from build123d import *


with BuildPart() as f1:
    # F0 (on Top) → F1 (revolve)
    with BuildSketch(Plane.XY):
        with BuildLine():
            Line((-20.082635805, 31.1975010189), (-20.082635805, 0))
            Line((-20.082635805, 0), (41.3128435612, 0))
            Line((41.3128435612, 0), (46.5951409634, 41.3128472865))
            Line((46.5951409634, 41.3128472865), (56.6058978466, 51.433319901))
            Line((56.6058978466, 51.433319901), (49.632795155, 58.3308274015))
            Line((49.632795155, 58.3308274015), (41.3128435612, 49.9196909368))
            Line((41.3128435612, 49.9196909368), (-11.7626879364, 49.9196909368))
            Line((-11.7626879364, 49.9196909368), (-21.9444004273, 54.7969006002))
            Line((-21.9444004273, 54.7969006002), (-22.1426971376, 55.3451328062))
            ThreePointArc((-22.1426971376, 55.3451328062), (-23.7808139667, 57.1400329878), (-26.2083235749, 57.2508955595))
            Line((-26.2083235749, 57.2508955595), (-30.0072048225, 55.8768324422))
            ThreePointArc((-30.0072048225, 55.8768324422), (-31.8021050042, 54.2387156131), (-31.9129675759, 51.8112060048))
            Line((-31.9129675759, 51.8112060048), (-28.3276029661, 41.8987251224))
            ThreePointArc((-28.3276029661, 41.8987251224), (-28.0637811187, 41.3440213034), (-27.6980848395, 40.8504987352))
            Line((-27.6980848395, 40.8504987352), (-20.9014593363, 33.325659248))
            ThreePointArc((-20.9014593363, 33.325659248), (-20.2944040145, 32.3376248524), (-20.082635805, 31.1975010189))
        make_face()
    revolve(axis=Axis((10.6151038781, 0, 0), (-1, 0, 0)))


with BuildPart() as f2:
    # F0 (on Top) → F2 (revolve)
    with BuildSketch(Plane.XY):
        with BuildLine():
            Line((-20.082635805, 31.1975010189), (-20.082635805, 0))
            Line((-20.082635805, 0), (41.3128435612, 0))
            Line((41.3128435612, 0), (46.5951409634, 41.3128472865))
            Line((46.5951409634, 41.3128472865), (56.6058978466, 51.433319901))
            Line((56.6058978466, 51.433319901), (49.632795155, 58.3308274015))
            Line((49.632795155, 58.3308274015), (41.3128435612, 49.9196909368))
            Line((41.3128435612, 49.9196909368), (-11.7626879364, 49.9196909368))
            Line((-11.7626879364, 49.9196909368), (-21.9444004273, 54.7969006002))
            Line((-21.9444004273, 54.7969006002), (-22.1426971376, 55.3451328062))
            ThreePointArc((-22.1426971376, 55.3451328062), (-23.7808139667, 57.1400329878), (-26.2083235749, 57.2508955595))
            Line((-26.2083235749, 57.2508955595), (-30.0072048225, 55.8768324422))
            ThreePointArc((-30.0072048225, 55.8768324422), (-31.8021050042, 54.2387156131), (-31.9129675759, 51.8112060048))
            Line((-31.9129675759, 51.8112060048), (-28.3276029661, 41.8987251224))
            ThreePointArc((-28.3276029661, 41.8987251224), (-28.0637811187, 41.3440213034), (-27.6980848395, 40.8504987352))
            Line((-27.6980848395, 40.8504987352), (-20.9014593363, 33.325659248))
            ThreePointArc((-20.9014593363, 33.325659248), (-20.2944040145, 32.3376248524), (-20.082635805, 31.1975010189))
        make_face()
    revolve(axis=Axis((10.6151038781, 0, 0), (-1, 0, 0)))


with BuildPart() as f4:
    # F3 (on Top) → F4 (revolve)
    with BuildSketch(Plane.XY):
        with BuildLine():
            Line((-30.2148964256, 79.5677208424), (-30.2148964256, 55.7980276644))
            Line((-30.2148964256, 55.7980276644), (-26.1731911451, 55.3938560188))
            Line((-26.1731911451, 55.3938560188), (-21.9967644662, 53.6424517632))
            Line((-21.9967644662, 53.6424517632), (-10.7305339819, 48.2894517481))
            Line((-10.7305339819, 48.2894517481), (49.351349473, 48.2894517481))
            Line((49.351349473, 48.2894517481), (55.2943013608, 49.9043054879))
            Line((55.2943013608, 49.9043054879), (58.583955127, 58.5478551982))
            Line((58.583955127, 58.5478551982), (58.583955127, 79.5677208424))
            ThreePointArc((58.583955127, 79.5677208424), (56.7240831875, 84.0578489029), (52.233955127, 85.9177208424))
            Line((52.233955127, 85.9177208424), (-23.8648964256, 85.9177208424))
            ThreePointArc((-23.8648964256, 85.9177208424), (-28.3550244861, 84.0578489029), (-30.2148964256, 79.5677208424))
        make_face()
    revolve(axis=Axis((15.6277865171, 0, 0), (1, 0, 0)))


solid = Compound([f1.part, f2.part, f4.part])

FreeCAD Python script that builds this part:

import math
import FreeCAD as App
import Part
import Sketcher
from FreeCAD import Vector
Q = App.Units.Quantity

doc = App.newDocument("Part")
body = doc.addObject("PartDesign::Body", "Body")

# Sketch on XY plane
sketch1 = doc.addObject("Sketcher::SketchObject", "Sketch")
body.addObject(sketch1)
sketch1.AttachmentSupport = (doc.XY_Plane, [""])
sketch1.MapMode = "FlatFace"
sketch1.addGeometry(Part.LineSegment(Vector(-20.082636, 31.197501, 0), Vector(-20.082636, 0, 0)), False)
sketch1.addGeometry(Part.LineSegment(Vector(-20.082636, 0, 0), Vector(41.312844, 0, 0)), False)
sketch1.addGeometry(Part.LineSegment(Vector(41.312844, 0, 0), Vector(46.595141, 41.312847, 0)), False)
sketch1.addGeometry(Part.LineSegment(Vector(46.595141, 41.312847, 0), Vector(56.605898, 51.43332, 0)), False)
sketch1.addGeometry(Part.LineSegment(Vector(56.605898, 51.43332, 0), Vector(49.632795, 58.330827, 0)), False)
sketch1.addGeometry(Part.LineSegment(Vector(49.632795, 58.330827, 0), Vector(41.312844, 49.919691, 0)), False)
sketch1.addGeometry(Part.LineSegment(Vector(41.312844, 49.919691, 0), Vector(-11.762688, 49.919691, 0)), False)
sketch1.addGeometry(Part.LineSegment(Vector(-11.762688, 49.919691, 0), Vector(-21.9444, 54.796901, 0)), False)
sketch1.addGeometry(Part.LineSegment(Vector(-21.9444, 54.796901, 0), Vector(-22.142697, 55.345133, 0)), False)
sketch1.addGeometry(Part.ArcOfCircle(Part.Circle(Vector(-25.128392, 54.265201, 0), Vector(0, 0, 1), 3.175), math.radians(19.885161), math.radians(109.885161)), False)
sketch1.addGeometry(Part.LineSegment(Vector(-26.208324, 57.250896, 0), Vector(-30.007205, 55.876832, 0)), False)
sketch1.addGeometry(Part.ArcOfCircle(Part.Circle(Vector(-28.927273, 52.891138, 0), Vector(0, 0, 1), 3.175), math.radians(109.885161), math.radians(199.885161)), False)
sketch1.addGeometry(Part.LineSegment(Vector(-31.912968, 51.811206, 0), Vector(-28.327603, 41.898725, 0)), False)
sketch1.addGeometry(Part.ArcOfCircle(Part.Circle(Vector(-25.341908, 42.978657, 0), Vector(0, 0, 1), 3.175), math.radians(-160.114839), math.radians(-137.910853)), False)
sketch1.addGeometry(Part.LineSegment(Vector(-27.698085, 40.850499, 0), Vector(-20.901459, 33.325659, 0)), False)
sketch1.addGeometry(Part.ArcOfCircle(Part.Circle(Vector(-23.257636, 31.197501, 0), Vector(0, 0, 1), 3.175), math.radians(0), math.radians(42.089147)), False)
sketch1.addConstraint(Sketcher.Constraint("Coincident", 0, 2, 1, 1))
sketch1.addConstraint(Sketcher.Constraint("Coincident", 1, 2, 2, 1))
sketch1.addConstraint(Sketcher.Constraint("Coincident", 2, 2, 3, 1))
sketch1.addConstraint(Sketcher.Constraint("Coincident", 3, 2, 4, 1))
sketch1.addConstraint(Sketcher.Constraint("Coincident", 4, 2, 5, 1))
sketch1.addConstraint(Sketcher.Constraint("Coincident", 5, 2, 6, 1))
sketch1.addConstraint(Sketcher.Constraint("Coincident", 6, 2, 7, 1))
sketch1.addConstraint(Sketcher.Constraint("Coincident", 7, 2, 8, 1))
sketch1.addConstraint(Sketcher.Constraint("Coincident", 8, 2, 9, 1))
sketch1.addConstraint(Sketcher.Constraint("Coincident", 9, 2, 10, 1))
sketch1.addConstraint(Sketcher.Constraint("Coincident", 10, 2, 11, 1))
sketch1.addConstraint(Sketcher.Constraint("Coincident", 11, 2, 12, 1))
sketch1.addConstraint(Sketcher.Constraint("Coincident", 12, 2, 13, 1))
sketch1.addConstraint(Sketcher.Constraint("Coincident", 13, 2, 14, 1))
sketch1.addConstraint(Sketcher.Constraint("Coincident", 14, 2, 15, 2))
sketch1.addConstraint(Sketcher.Constraint("Coincident", 15, 1, 0, 1))
sketch1.addConstraint(Sketcher.Constraint("Vertical", 0))
sketch1.addConstraint(Sketcher.Constraint("Horizontal", 1))
sketch1.addConstraint(Sketcher.Constraint("Horizontal", 6))
sketch1.addConstraint(Sketcher.Constraint("PointOnObject", 0, 2, -1))
sketch1.addConstraint(Sketcher.Constraint("Radius", 9, Q("0.125 in")))
sketch1.addConstraint(Sketcher.Constraint("Radius", 11, Q("0.125 in")))
sketch1.addConstraint(Sketcher.Constraint("Radius", 13, Q("0.125 in")))
sketch1.addConstraint(Sketcher.Constraint("Radius", 15, Q("0.125 in")))
sketch1.addConstraint(Sketcher.Constraint("DistanceY", 0, 2, 0, 1, Q("31.197501 mm")))
sketch1.addConstraint(Sketcher.Constraint("DistanceY", 6, 2, 8, 2, Q("0.2136001 in")))
sketch1.addConstraint(Sketcher.Constraint("DistanceX", 1, 1, 1, 2, Q("61.395479 mm")))
sketch1.addConstraint(Sketcher.Constraint("DistanceX", 6, 2, 6, 1, Q("53.075531 mm")))
sketch1.addConstraint(Sketcher.Constraint("DistanceY", -1, 1, 9, 3, Q("54.265201 mm")))
sketch1.addConstraint(Sketcher.Constraint("DistanceY", -1, 1, 15, 3, Q("31.197501 mm")))
sketch1.addConstraint(Sketcher.Constraint("DistanceX", 7, 2, -1, 1, Q("21.9444 mm")))
sketch1.addConstraint(Sketcher.Constraint("DistanceY", -1, 1, 7, 2, Q("54.796901 mm")))
sketch1.addConstraint(Sketcher.Constraint("DistanceY", -1, 1, 13, 2, Q("40.850499 mm")))
sketch1.addConstraint(Sketcher.Constraint("DistanceY", 8, 2, 10, 2, Q("0.5317 mm")))
sketch1.addConstraint(Sketcher.Constraint("Distance", 3, Q("14.23514 mm")))
sketch1.addConstraint(Sketcher.Constraint("Distance", 4, Q("9.808148 mm")))
sketch1.addConstraint(Sketcher.Constraint("Distance", 5, Q("11.830842 mm")))
sketch1.addConstraint(Sketcher.Constraint("DistanceX", 9, 3, -1, 1, Q("25.128392 mm")))
sketch1.addConstraint(Sketcher.Constraint("DistanceX", 13, 3, -1, 1, Q("25.341908 mm")))
sketch1.addConstraint(Sketcher.Constraint("DistanceX", -1, 1, 2, 2, Q("46.595141 mm")))
sketch1.addConstraint(Sketcher.Constraint("DistanceY", -1, 1, 3, 2, Q("51.43332 mm")))
sketch1.addConstraint(Sketcher.Constraint("DistanceY", -1, 1, 5, 2, Q("49.919691 mm")))
sketch1.addConstraint(Sketcher.Constraint("DistanceX", 14, 2, -1, 1, Q("20.901459 mm")))
sketch1.addConstraint(Sketcher.Constraint("DistanceY", -1, 1, 14, 2, Q("33.325659 mm")))
sketch1.addConstraint(Sketcher.Constraint("DistanceX", 11, 3, 9, 3, Q("3.798881 mm")))
sketch1.addConstraint(Sketcher.Constraint("DistanceY", 13, 3, 11, 3, Q("9.912481 mm")))
sketch1.addConstraint(Sketcher.Constraint("DistanceY", 2, 2, 13, 3, Q("1.66581 mm")))
sketch1.addConstraint(Sketcher.Constraint("DistanceX", 9, 3, 3, 2, Q("81.73429 mm")))
sketch1.addConstraint(Sketcher.Constraint("DistanceY", 2, 2, 4, 2, Q("17.01798 mm")))
sketch1.addConstraint(Sketcher.Constraint("DistanceX", 9, 2, 9, 3, Q("1.079932 mm")))
sketch1.addConstraint(Sketcher.Constraint("DistanceY", 11, 2, 11, 3, Q("1.079932 mm")))
sketch1.addConstraint(Sketcher.Constraint("DistanceY", 12, 2, 13, 3, Q("1.079932 mm")))
revolution = doc.addObject("PartDesign::Revolution", "Revolution")
body.addObject(revolution)
revolution.Profile = sketch1
revolution.ReferenceAxis = (sketch1, ["H_Axis"])
revolution.Angle = 360
body2 = doc.addObject("PartDesign::Body", "Body001")

# Sketch on XY plane
sketch2 = doc.addObject("Sketcher::SketchObject", "Sketch001")
body2.addObject(sketch2)
sketch2.AttachmentSupport = (doc.getObject("XY_Plane001"), [""])
sketch2.MapMode = "FlatFace"
sketch2.addGeometry(Part.LineSegment(Vector(-20.082636, 31.197501, 0), Vector(-20.082636, 0, 0)), False)
sketch2.addGeometry(Part.LineSegment(Vector(-20.082636, 0, 0), Vector(41.312844, 0, 0)), False)
sketch2.addGeometry(Part.LineSegment(Vector(41.312844, 0, 0), Vector(46.595141, 41.312847, 0)), False)
sketch2.addGeometry(Part.LineSegment(Vector(46.595141, 41.312847, 0), Vector(56.605898, 51.43332, 0)), False)
sketch2.addGeometry(Part.LineSegment(Vector(56.605898, 51.43332, 0), Vector(49.632795, 58.330827, 0)), False)
sketch2.addGeometry(Part.LineSegment(Vector(49.632795, 58.330827, 0), Vector(41.312844, 49.919691, 0)), False)
sketch2.addGeometry(Part.LineSegment(Vector(41.312844, 49.919691, 0), Vector(-11.762688, 49.919691, 0)), False)
sketch2.addGeometry(Part.LineSegment(Vector(-11.762688, 49.919691, 0), Vector(-21.9444, 54.796901, 0)), False)
sketch2.addGeometry(Part.LineSegment(Vector(-21.9444, 54.796901, 0), Vector(-22.142697, 55.345133, 0)), False)
sketch2.addGeometry(Part.ArcOfCircle(Part.Circle(Vector(-25.128392, 54.265201, 0), Vector(0, 0, 1), 3.175), math.radians(19.885161), math.radians(109.885161)), False)
sketch2.addGeometry(Part.LineSegment(Vector(-26.208324, 57.250896, 0), Vector(-30.007205, 55.876832, 0)), False)
sketch2.addGeometry(Part.ArcOfCircle(Part.Circle(Vector(-28.927273, 52.891138, 0), Vector(0, 0, 1), 3.175), math.radians(109.885161), math.radians(199.885161)), False)
sketch2.addGeometry(Part.LineSegment(Vector(-31.912968, 51.811206, 0), Vector(-28.327603, 41.898725, 0)), False)
sketch2.addGeometry(Part.ArcOfCircle(Part.Circle(Vector(-25.341908, 42.978657, 0), Vector(0, 0, 1), 3.175), math.radians(-160.114839), math.radians(-137.910853)), False)
sketch2.addGeometry(Part.LineSegment(Vector(-27.698085, 40.850499, 0), Vector(-20.901459, 33.325659, 0)), False)
sketch2.addGeometry(Part.ArcOfCircle(Part.Circle(Vector(-23.257636, 31.197501, 0), Vector(0, 0, 1), 3.175), math.radians(0), math.radians(42.089147)), False)
sketch2.addConstraint(Sketcher.Constraint("Coincident", 0, 2, 1, 1))
sketch2.addConstraint(Sketcher.Constraint("Coincident", 1, 2, 2, 1))
sketch2.addConstraint(Sketcher.Constraint("Coincident", 2, 2, 3, 1))
sketch2.addConstraint(Sketcher.Constraint("Coincident", 3, 2, 4, 1))
sketch2.addConstraint(Sketcher.Constraint("Coincident", 4, 2, 5, 1))
sketch2.addConstraint(Sketcher.Constraint("Coincident", 5, 2, 6, 1))
sketch2.addConstraint(Sketcher.Constraint("Coincident", 6, 2, 7, 1))
sketch2.addConstraint(Sketcher.Constraint("Coincident", 7, 2, 8, 1))
sketch2.addConstraint(Sketcher.Constraint("Coincident", 8, 2, 9, 1))
sketch2.addConstraint(Sketcher.Constraint("Coincident", 9, 2, 10, 1))
sketch2.addConstraint(Sketcher.Constraint("Coincident", 10, 2, 11, 1))
sketch2.addConstraint(Sketcher.Constraint("Coincident", 11, 2, 12, 1))
sketch2.addConstraint(Sketcher.Constraint("Coincident", 12, 2, 13, 1))
sketch2.addConstraint(Sketcher.Constraint("Coincident", 13, 2, 14, 1))
sketch2.addConstraint(Sketcher.Constraint("Coincident", 14, 2, 15, 2))
sketch2.addConstraint(Sketcher.Constraint("Coincident", 15, 1, 0, 1))
sketch2.addConstraint(Sketcher.Constraint("Vertical", 0))
sketch2.addConstraint(Sketcher.Constraint("Horizontal", 1))
sketch2.addConstraint(Sketcher.Constraint("Horizontal", 6))
sketch2.addConstraint(Sketcher.Constraint("PointOnObject", 0, 2, -1))
sketch2.addConstraint(Sketcher.Constraint("Radius", 9, Q("0.125 in")))
sketch2.addConstraint(Sketcher.Constraint("Radius", 11, Q("0.125 in")))
sketch2.addConstraint(Sketcher.Constraint("Radius", 13, Q("0.125 in")))
sketch2.addConstraint(Sketcher.Constraint("Radius", 15, Q("0.125 in")))
sketch2.addConstraint(Sketcher.Constraint("DistanceY", 0, 2, 0, 1, Q("31.197501 mm")))
sketch2.addConstraint(Sketcher.Constraint("DistanceY", 6, 2, 8, 2, Q("0.2136001 in")))
sketch2.addConstraint(Sketcher.Constraint("DistanceX", 1, 1, 1, 2, Q("61.395479 mm")))
sketch2.addConstraint(Sketcher.Constraint("DistanceX", 6, 2, 6, 1, Q("53.075531 mm")))
sketch2.addConstraint(Sketcher.Constraint("DistanceY", -1, 1, 9, 3, Q("54.265201 mm")))
sketch2.addConstraint(Sketcher.Constraint("DistanceY", -1, 1, 15, 3, Q("31.197501 mm")))
sketch2.addConstraint(Sketcher.Constraint("DistanceX", 7, 2, -1, 1, Q("21.9444 mm")))
sketch2.addConstraint(Sketcher.Constraint("DistanceY", -1, 1, 7, 2, Q("54.796901 mm")))
sketch2.addConstraint(Sketcher.Constraint("DistanceY", -1, 1, 13, 2, Q("40.850499 mm")))
sketch2.addConstraint(Sketcher.Constraint("DistanceY", 8, 2, 10, 2, Q("0.5317 mm")))
sketch2.addConstraint(Sketcher.Constraint("Distance", 3, Q("14.23514 mm")))
sketch2.addConstraint(Sketcher.Constraint("Distance", 4, Q("9.808148 mm")))
sketch2.addConstraint(Sketcher.Constraint("Distance", 5, Q("11.830842 mm")))
sketch2.addConstraint(Sketcher.Constraint("DistanceX", 9, 3, -1, 1, Q("25.128392 mm")))
sketch2.addConstraint(Sketcher.Constraint("DistanceX", 13, 3, -1, 1, Q("25.341908 mm")))
sketch2.addConstraint(Sketcher.Constraint("DistanceX", -1, 1, 2, 2, Q("46.595141 mm")))
sketch2.addConstraint(Sketcher.Constraint("DistanceY", -1, 1, 3, 2, Q("51.43332 mm")))
sketch2.addConstraint(Sketcher.Constraint("DistanceY", -1, 1, 5, 2, Q("49.919691 mm")))
sketch2.addConstraint(Sketcher.Constraint("DistanceX", 14, 2, -1, 1, Q("20.901459 mm")))
sketch2.addConstraint(Sketcher.Constraint("DistanceY", -1, 1, 14, 2, Q("33.325659 mm")))
sketch2.addConstraint(Sketcher.Constraint("DistanceX", 11, 3, 9, 3, Q("3.798881 mm")))
sketch2.addConstraint(Sketcher.Constraint("DistanceY", 13, 3, 11, 3, Q("9.912481 mm")))
sketch2.addConstraint(Sketcher.Constraint("DistanceY", 2, 2, 13, 3, Q("1.66581 mm")))
sketch2.addConstraint(Sketcher.Constraint("DistanceX", 9, 3, 3, 2, Q("81.73429 mm")))
sketch2.addConstraint(Sketcher.Constraint("DistanceY", 2, 2, 4, 2, Q("17.01798 mm")))
sketch2.addConstraint(Sketcher.Constraint("DistanceX", 9, 2, 9, 3, Q("1.079932 mm")))
sketch2.addConstraint(Sketcher.Constraint("DistanceY", 11, 2, 11, 3, Q("1.079932 mm")))
sketch2.addConstraint(Sketcher.Constraint("DistanceY", 12, 2, 13, 3, Q("1.079932 mm")))
revolution2 = doc.addObject("PartDesign::Revolution", "Revolution001")
body2.addObject(revolution2)
revolution2.Profile = sketch2
revolution2.ReferenceAxis = (sketch2, ["H_Axis"])
revolution2.Angle = 360
body3 = doc.addObject("PartDesign::Body", "Body002")

# Sketch on XY plane
sketch3 = doc.addObject("Sketcher::SketchObject", "Sketch002")
body3.addObject(sketch3)
sketch3.AttachmentSupport = (doc.getObject("XY_Plane002"), [""])
sketch3.MapMode = "FlatFace"
sketch3.addGeometry(Part.LineSegment(Vector(-30.2, 79.6, 0), Vector(-30.2, 55.8, 0)), False)
sketch3.addGeometry(Part.LineSegment(Vector(-30.2, 55.8, 0), Vector(-26.2, 55.4, 0)), False)
sketch3.addGeometry(Part.LineSegment(Vector(-26.2, 55.4, 0), Vector(-22, 53.6, 0)), False)
sketch3.addGeometry(Part.LineSegment(Vector(-22, 53.6, 0), Vector(-10.7, 48.3, 0)), False)
sketch3.addGeometry(Part.LineSegment(Vector(-10.7, 48.3, 0), Vector(49.4, 48.3, 0)), False)
sketch3.addGeometry(Part.LineSegment(Vector(49.4, 48.3, 0), Vector(55.3, 49.9, 0)), False)
sketch3.addGeometry(Part.LineSegment(Vector(55.3, 49.9, 0), Vector(58.6, 58.5, 0)), False)
sketch3.addGeometry(Part.LineSegment(Vector(58.6, 58.5, 0), Vector(58.6, 79.6, 0)), False)
sketch3.addGeometry(Part.ArcOfCircle(Part.Circle(Vector(52.2, 79.6, 0), Vector(0, 0, 1), 6.3), math.radians(0), math.radians(90)), False)
sketch3.addGeometry(Part.LineSegment(Vector(52.2, 85.9, 0), Vector(-23.9, 85.9, 0)), False)
sketch3.addGeometry(Part.ArcOfCircle(Part.Circle(Vector(-23.9, 79.6, 0), Vector(0, 0, 1), 6.3), math.radians(90), math.radians(180)), False)
sketch3.addConstraint(Sketcher.Constraint("Coincident", 0, 2, 1, 1))
sketch3.addConstraint(Sketcher.Constraint("Coincident", 1, 2, 2, 1))
sketch3.addConstraint(Sketcher.Constraint("Coincident", 2, 2, 3, 1))
sketch3.addConstraint(Sketcher.Constraint("Coincident", 3, 2, 4, 1))
sketch3.addConstraint(Sketcher.Constraint("Coincident", 4, 2, 5, 1))
sketch3.addConstraint(Sketcher.Constraint("Coincident", 5, 2, 6, 1))
sketch3.addConstraint(Sketcher.Constraint("Coincident", 6, 2, 7, 1))
sketch3.addConstraint(Sketcher.Constraint("Tangent", 7, 2, 8, 1))
sketch3.addConstraint(Sketcher.Constraint("Tangent", 8, 2, 9, 1))
sketch3.addConstraint(Sketcher.Constraint("Tangent", 9, 2, 10, 1))
sketch3.addConstraint(Sketcher.Constraint("Tangent", 10, 2, 0, 1))
sketch3.addConstraint(Sketcher.Constraint("Vertical", 0))
sketch3.addConstraint(Sketcher.Constraint("Horizontal", 4))
sketch3.addConstraint(Sketcher.Constraint("Vertical", 7))
sketch3.addConstraint(Sketcher.Constraint("Horizontal", 9))
sketch3.addConstraint(Sketcher.Constraint("Equal", 8, 10))
sketch3.addConstraint(Sketcher.Constraint("Radius", 8, Q("0.25 in")))
sketch3.addConstraint(Sketcher.Constraint("DistanceX", 9, 2, 9, 1, Q("76.098852 mm")))
sketch3.addConstraint(Sketcher.Constraint("DistanceX", -1, 1, 5, 2, Q("55.294301 mm")))
sketch3.addConstraint(Sketcher.Constraint("DistanceY", 3, 2, 2, 2, Q("5.353 mm")))
sketch3.addConstraint(Sketcher.Constraint("Distance", 2, Q("4.528792 mm")))
sketch3.addConstraint(Sketcher.Constraint("DistanceX", 4, 1, 4, 2, Q("60.081883 mm")))
sketch3.addConstraint(Sketcher.Constraint("DistanceY", 0, 2, 0, 1, Q("23.769693 mm")))
sketch3.addConstraint(Sketcher.Constraint("DistanceY", 7, 1, 7, 2, Q("21.019866 mm")))
sketch3.addConstraint(Sketcher.Constraint("DistanceY", -1, 1, 8, 3, Q("79.567721 mm")))
sketch3.addConstraint(Sketcher.Constraint("DistanceX", 1, 2, -1, 1, Q("26.173191 mm")))
sketch3.addConstraint(Sketcher.Constraint("DistanceY", -1, 1, 2, 2, Q("53.642452 mm")))
sketch3.addConstraint(Sketcher.Constraint("DistanceX", -1, 1, 4, 2, Q("49.351349 mm")))
sketch3.addConstraint(Sketcher.Constraint("DistanceY", 1, 2, 0, 2, Q("0.404172 mm")))
sketch3.addConstraint(Sketcher.Constraint("DistanceX", 0, 2, 2, 2, Q("8.218132 mm")))
sketch3.addConstraint(Sketcher.Constraint("DistanceY", 5, 2, 1, 2, Q("5.489551 mm")))
revolution3 = doc.addObject("PartDesign::Revolution", "Revolution002")
body3.addObject(revolution3)
revolution3.Profile = sketch3
revolution3.ReferenceAxis = (sketch3, ["H_Axis"])
revolution3.Angle = 360

doc.recompute()
